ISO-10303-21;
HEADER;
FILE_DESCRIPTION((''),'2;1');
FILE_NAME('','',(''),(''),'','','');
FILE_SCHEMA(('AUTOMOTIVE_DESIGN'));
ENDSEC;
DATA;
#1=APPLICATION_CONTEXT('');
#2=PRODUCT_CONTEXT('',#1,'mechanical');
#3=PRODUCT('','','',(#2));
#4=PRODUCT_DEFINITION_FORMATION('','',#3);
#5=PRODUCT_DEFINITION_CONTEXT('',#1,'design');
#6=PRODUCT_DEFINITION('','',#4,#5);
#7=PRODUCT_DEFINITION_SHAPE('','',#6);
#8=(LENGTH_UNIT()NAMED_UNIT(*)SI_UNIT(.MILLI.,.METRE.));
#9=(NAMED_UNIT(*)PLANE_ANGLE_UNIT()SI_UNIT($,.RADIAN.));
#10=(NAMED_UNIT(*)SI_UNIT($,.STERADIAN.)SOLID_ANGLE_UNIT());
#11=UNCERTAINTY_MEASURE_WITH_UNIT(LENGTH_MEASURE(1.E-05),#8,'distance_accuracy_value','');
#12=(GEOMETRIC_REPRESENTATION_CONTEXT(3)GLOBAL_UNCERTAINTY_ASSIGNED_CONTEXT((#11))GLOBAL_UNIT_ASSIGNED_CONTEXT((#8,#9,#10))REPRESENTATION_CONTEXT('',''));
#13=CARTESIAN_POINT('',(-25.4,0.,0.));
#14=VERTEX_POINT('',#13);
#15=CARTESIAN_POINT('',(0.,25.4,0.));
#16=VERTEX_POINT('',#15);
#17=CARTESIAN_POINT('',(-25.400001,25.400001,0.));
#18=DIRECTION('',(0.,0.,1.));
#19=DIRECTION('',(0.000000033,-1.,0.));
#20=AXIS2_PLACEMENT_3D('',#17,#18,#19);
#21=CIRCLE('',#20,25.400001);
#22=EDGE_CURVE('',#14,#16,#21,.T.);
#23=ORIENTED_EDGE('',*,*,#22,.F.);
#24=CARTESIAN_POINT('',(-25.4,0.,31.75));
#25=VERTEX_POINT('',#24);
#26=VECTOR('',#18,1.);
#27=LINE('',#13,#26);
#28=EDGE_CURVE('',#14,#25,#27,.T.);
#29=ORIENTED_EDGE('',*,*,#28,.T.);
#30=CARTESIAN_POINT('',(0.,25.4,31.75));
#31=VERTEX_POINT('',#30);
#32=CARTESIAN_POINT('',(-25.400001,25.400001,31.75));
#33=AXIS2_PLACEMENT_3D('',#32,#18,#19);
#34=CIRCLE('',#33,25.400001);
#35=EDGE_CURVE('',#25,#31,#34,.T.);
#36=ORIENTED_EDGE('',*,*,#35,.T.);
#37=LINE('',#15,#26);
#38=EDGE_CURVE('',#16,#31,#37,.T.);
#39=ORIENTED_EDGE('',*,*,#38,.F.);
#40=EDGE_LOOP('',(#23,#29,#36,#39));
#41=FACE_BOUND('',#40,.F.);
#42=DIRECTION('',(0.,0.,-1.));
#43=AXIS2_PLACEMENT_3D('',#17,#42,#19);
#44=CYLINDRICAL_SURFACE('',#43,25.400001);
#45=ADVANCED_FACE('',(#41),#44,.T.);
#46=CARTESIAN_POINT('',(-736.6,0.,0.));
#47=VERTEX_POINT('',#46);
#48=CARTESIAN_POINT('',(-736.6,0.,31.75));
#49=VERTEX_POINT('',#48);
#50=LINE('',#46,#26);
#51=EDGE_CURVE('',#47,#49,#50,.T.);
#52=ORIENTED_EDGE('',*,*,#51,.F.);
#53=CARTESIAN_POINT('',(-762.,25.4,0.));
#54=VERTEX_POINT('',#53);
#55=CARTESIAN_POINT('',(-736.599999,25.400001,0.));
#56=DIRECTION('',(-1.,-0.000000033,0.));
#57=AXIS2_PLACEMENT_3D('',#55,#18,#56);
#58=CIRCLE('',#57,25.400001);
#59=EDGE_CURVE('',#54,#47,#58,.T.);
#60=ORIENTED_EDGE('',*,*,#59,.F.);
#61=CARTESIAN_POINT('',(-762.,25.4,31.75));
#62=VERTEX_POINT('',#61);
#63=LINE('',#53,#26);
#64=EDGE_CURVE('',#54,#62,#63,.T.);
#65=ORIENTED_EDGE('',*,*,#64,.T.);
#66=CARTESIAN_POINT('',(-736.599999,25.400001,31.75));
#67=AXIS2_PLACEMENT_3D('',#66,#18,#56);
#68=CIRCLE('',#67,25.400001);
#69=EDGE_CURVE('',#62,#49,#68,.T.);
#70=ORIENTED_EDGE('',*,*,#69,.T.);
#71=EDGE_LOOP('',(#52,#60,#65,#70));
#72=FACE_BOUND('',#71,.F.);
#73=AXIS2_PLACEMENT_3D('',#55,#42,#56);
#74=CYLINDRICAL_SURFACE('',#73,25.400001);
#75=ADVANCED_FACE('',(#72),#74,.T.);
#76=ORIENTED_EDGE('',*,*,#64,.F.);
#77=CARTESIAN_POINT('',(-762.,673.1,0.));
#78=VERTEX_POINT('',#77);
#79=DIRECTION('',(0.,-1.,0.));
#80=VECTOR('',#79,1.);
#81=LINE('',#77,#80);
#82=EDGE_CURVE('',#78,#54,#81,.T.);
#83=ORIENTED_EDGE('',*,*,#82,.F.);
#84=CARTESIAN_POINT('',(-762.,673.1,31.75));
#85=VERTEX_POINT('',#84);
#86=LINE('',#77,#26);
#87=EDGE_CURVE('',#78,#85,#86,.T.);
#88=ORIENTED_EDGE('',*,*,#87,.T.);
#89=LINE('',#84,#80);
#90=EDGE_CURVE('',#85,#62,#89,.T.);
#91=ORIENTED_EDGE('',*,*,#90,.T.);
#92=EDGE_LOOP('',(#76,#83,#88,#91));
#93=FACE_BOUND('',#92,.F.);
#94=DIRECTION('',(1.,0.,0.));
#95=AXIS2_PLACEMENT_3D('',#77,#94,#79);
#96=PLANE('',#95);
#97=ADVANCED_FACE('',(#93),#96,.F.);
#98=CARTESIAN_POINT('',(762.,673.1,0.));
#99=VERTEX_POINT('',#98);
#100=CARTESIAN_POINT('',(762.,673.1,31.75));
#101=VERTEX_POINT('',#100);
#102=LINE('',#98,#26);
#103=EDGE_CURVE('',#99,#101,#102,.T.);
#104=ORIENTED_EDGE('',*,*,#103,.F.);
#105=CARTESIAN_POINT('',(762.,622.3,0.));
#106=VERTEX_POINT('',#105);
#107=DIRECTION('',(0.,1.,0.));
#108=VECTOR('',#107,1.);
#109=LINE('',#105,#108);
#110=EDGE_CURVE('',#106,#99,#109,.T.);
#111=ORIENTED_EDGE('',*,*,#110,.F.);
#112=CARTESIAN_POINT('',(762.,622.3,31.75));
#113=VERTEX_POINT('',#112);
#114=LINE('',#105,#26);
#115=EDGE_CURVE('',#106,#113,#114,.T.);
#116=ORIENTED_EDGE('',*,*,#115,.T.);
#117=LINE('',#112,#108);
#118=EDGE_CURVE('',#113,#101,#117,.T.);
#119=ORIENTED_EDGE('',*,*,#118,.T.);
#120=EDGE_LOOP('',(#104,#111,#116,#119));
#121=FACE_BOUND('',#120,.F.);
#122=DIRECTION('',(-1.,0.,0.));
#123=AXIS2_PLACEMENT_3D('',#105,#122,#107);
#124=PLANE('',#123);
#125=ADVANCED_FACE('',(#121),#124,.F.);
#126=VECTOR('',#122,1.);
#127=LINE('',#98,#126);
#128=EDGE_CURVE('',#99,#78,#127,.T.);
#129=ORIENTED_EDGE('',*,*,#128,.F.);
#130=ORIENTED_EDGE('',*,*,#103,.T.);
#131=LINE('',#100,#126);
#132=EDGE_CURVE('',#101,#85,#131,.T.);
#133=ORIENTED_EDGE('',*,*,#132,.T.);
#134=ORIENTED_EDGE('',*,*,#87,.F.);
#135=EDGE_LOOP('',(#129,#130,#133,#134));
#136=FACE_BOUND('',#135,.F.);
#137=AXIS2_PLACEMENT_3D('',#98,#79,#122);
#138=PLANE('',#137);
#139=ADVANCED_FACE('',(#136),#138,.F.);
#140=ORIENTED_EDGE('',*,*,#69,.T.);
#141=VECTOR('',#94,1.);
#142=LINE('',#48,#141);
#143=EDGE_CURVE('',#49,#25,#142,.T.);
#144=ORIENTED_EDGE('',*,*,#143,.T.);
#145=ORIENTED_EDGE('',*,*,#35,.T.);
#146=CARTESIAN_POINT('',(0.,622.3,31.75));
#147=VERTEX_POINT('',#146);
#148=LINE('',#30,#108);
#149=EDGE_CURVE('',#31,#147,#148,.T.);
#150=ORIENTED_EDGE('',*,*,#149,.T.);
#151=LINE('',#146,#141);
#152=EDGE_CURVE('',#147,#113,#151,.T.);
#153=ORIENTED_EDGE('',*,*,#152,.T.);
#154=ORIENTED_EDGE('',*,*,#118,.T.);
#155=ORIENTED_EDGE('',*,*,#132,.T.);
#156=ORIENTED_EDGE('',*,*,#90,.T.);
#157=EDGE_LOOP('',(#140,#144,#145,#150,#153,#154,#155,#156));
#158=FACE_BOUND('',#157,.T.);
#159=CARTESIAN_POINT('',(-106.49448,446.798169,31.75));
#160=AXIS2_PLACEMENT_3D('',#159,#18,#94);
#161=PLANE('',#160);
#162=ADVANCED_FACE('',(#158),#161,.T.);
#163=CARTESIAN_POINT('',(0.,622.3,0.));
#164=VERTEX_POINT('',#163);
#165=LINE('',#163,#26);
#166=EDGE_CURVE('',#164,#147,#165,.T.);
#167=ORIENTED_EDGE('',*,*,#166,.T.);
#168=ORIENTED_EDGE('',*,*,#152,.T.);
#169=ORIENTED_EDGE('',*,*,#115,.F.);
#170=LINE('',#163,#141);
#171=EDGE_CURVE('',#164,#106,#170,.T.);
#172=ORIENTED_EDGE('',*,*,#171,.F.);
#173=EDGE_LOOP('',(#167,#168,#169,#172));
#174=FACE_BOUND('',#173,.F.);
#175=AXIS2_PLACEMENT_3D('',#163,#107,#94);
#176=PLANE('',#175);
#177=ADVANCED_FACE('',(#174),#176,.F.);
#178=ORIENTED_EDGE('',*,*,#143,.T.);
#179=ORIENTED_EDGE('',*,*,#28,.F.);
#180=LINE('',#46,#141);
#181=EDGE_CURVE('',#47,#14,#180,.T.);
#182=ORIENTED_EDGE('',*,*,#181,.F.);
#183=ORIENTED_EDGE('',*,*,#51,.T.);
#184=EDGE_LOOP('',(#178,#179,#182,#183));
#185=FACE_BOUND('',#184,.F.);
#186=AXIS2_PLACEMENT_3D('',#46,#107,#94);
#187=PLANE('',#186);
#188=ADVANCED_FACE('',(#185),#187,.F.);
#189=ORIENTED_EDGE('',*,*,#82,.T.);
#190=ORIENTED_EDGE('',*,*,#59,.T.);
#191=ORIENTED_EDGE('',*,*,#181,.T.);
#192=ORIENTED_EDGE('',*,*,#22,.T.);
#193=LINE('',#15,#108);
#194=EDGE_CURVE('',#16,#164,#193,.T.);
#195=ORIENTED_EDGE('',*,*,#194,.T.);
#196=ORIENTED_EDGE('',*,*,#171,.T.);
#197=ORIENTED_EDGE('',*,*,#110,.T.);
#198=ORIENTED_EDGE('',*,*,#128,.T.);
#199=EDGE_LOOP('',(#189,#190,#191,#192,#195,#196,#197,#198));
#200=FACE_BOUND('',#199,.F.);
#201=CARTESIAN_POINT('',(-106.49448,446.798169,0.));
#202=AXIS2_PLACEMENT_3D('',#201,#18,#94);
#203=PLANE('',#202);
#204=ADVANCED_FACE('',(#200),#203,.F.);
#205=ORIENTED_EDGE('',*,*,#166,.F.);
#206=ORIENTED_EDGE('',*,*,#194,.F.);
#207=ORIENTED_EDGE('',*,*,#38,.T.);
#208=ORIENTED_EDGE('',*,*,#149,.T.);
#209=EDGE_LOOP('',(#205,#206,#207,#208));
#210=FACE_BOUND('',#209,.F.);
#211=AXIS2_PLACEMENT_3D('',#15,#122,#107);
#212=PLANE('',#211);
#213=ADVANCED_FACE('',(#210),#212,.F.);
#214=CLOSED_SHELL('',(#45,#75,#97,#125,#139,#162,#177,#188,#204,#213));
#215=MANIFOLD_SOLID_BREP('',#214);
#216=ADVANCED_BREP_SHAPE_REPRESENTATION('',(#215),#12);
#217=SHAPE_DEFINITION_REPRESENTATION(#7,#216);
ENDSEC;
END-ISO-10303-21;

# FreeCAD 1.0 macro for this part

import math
import FreeCAD as App
import Part
import Sketcher
from FreeCAD import Vector
Q = App.Units.Quantity

doc = App.newDocument("Part")
body = doc.addObject("PartDesign::Body", "Body")

# Sketch on XY plane
sketch1 = body.newObject("Sketcher::SketchObject", "Sketch")
sketch1.AttachmentSupport = (doc.getObject("XY_Plane"), [""])
sketch1.MapMode = "FlatFace"
sketch1.addGeometry(Part.LineSegment(Vector(-737, 0, 0), Vector(-25, 0, 0)), False)
sketch1.addGeometry(Part.ArcOfCircle(Part.Circle(Vector(-25, 25, 0), Vector(0, 0, 1), 25), math.radians(-90), math.radians(0)), False)
sketch1.addGeometry(Part.LineSegment(Vector(0, 25, 0), Vector(0, 622, 0)), False)
sketch1.addGeometry(Part.LineSegment(Vector(0, 622, 0), Vector(762, 622, 0)), False)
sketch1.addGeometry(Part.LineSegment(Vector(762, 622, 0), Vector(762, 673, 0)), False)
sketch1.addGeometry(Part.LineSegment(Vector(762, 673, 0), Vector(-762, 673, 0)), False)
sketch1.addGeometry(Part.LineSegment(Vector(-762, 673, 0), Vector(-762, 25, 0)), False)
sketch1.addGeometry(Part.ArcOfCircle(Part.Circle(Vector(-737, 25, 0), Vector(0, 0, 1), 25), math.radians(-180), math.radians(-90)), False)
sketch1.addConstraint(Sketcher.Constraint("Tangent", 0, 2, 1, 1))
sketch1.addConstraint(Sketcher.Constraint("Tangent", 1, 2, 2, 1))
sketch1.addConstraint(Sketcher.Constraint("Coincident", 2, 2, 3, 1))
sketch1.addConstraint(Sketcher.Constraint("Coincident", 3, 2, 4, 1))
sketch1.addConstraint(Sketcher.Constraint("Coincident", 4, 2, 5, 1))
sketch1.addConstraint(Sketcher.Constraint("Coincident", 5, 2, 6, 1))
sketch1.addConstraint(Sketcher.Constraint("Tangent", 6, 2, 7, 1))
sketch1.addConstraint(Sketcher.Constraint("Tangent", 7, 2, 0, 1))
sketch1.addConstraint(Sketcher.Constraint("Horizontal", 0))
sketch1.addConstraint(Sketcher.Constraint("Vertical", 2))
sketch1.addConstraint(Sketcher.Constraint("Horizontal", 3))
sketch1.addConstraint(Sketcher.Constraint("Vertical", 4))
sketch1.addConstraint(Sketcher.Constraint("Horizontal", 5))
sketch1.addConstraint(Sketcher.Constraint("Vertical", 6))
sketch1.addConstraint(Sketcher.Constraint("Equal", 1, 7))
sketch1.addConstraint(Sketcher.Constraint("PointOnObject", 0, 2, -1))
sketch1.addConstraint(Sketcher.Constraint("PointOnObject", 1, 2, -2))
sketch1.addConstraint(Sketcher.Constraint("Radius", 1, Q("1 in")))
sketch1.addConstraint(Sketcher.Constraint("DistanceX", 0, 1, 0, 2, Q("28 in")))
sketch1.addConstraint(Sketcher.Constraint("DistanceX", 3, 1, 3, 2, Q("30 in")))
sketch1.addConstraint(Sketcher.Constraint("DistanceY", 4, 1, 4, 2, Q("2 in")))
sketch1.addConstraint(Sketcher.Constraint("DistanceY", 2, 1, 2, 2, Q("23.5 in")))
pad1 = body.newObject("PartDesign::Pad", "Pad")
pad1.Profile = sketch1
pad1.Length = Q("1.25 in")

doc.recompute()
